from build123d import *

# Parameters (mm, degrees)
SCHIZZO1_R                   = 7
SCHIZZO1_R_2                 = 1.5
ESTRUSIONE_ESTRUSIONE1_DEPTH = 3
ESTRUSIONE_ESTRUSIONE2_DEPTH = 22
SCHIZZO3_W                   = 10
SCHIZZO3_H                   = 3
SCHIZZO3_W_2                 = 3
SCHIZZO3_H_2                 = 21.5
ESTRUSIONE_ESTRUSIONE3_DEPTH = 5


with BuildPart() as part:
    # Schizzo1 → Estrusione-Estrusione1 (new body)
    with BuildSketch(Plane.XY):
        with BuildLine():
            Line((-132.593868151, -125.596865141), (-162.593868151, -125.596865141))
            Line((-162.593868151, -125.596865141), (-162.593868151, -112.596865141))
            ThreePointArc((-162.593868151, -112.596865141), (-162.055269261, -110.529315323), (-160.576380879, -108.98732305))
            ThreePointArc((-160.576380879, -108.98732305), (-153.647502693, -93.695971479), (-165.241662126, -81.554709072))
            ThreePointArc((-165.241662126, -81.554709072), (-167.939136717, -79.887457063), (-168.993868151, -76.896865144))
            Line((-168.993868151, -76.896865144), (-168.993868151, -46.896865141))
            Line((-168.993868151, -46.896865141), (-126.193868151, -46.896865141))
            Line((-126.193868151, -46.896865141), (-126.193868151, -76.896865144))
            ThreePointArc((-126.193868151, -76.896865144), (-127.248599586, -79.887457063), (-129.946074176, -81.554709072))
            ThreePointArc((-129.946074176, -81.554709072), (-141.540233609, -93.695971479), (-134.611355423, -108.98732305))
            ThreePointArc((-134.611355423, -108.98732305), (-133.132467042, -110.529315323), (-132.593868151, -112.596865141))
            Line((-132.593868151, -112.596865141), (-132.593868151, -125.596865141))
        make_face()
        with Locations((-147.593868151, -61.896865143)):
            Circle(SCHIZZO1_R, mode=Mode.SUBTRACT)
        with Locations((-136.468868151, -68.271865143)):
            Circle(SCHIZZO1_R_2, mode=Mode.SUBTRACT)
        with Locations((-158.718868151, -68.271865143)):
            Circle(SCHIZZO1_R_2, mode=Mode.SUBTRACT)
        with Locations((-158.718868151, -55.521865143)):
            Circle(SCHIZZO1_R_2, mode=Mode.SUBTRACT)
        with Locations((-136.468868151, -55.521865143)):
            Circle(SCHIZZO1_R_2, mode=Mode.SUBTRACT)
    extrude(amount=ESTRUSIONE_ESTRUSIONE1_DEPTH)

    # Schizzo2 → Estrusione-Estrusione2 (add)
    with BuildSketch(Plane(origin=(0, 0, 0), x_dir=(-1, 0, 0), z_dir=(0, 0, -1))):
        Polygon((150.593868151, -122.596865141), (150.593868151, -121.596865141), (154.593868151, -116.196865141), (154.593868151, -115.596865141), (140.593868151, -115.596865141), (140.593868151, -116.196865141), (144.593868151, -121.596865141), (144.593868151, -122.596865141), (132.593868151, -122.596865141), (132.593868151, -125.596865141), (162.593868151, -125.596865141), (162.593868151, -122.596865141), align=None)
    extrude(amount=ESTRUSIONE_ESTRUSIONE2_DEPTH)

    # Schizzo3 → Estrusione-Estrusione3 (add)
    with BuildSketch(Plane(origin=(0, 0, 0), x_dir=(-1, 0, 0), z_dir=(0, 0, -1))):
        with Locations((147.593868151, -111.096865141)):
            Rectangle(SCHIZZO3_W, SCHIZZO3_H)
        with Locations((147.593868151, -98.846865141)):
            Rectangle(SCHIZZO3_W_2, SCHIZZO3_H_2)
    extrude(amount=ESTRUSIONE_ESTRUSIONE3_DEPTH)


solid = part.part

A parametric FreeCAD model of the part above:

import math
import FreeCAD as App
import Part
import Sketcher

V = App.Vector

doc = App.newDocument("Part")
body = doc.addObject("PartDesign::Body", "Body")

sketch1 = body.newObject("Sketcher::SketchObject", "Sketch")
sketch1.AttachmentSupport = (doc.getObject("XY_Plane"), [""])
sketch1.MapMode = "FlatFace"
sketch1.addGeometry([
    Part.LineSegment(V(-162.6, -125.6, 0), V(-132.6, -125.6, 0)),
    Part.LineSegment(V(-132.6, -125.6, 0), V(-132.6, -112.6, 0)),
    Part.ArcOfCircle(Part.Circle(V(-136.8, -112.6, 0), V(0, 0, 1), 4.2), math.radians(0), math.radians(58)),
    Part.ArcOfCircle(Part.Circle(V(-126.8, -96.2, 0), V(0, 0, 1), 15), math.radians(102), math.radians(238)),
    Part.ArcOfCircle(Part.Circle(V(-131, -76.9, 0), V(0, 0, 1), 4.8), math.radians(-78), math.radians(0)),
    Part.LineSegment(V(-126.2, -76.9, 0), V(-126.2, -46.9, 0)),
    Part.LineSegment(V(-126.2, -46.9, 0), V(-169, -46.9, 0)),
    Part.LineSegment(V(-169, -46.9, 0), V(-169, -76.9, 0)),
    Part.ArcOfCircle(Part.Circle(V(-164.2, -76.9, 0), V(0, 0, 1), 4.8), math.radians(180), math.radians(258)),
    Part.ArcOfCircle(Part.Circle(V(-168.4, -96.2, 0), V(0, 0, 1), 15), math.radians(-58), math.radians(78)),
    Part.ArcOfCircle(Part.Circle(V(-158.4, -112.6, 0), V(0, 0, 1), 4.2), math.radians(122), math.radians(180)),
    Part.LineSegment(V(-162.6, -112.6, 0), V(-162.6, -125.6, 0)),
    Part.Circle(V(-136.5, -68.3, 0), V(0, 0, 1), 1.5),
    Part.Circle(V(-158.7, -68.3, 0), V(0, 0, 1), 1.5),
    Part.Circle(V(-136.5, -55.5, 0), V(0, 0, 1), 1.5),
    Part.Circle(V(-147.6, -61.9, 0), V(0, 0, 1), 7),
    Part.Circle(V(-158.7, -55.5, 0), V(0, 0, 1), 1.5),
], False)
sketch1.addConstraint([
    Sketcher.Constraint("Coincident", 0, 2, 1, 1),
    Sketcher.Constraint("Tangent", 1, 2, 2, 1),
    Sketcher.Constraint("Tangent", 2, 2, 3, 2),
    Sketcher.Constraint("Tangent", 3, 1, 4, 1),
    Sketcher.Constraint("Tangent", 4, 2, 5, 1),
    Sketcher.Constraint("Coincident", 5, 2, 6, 1),
    Sketcher.Constraint("Coincident", 6, 2, 7, 1),
    Sketcher.Constraint("Tangent", 7, 2, 8, 1),
    Sketcher.Constraint("Tangent", 8, 2, 9, 2),
    Sketcher.Constraint("Tangent", 9, 1, 10, 1),
    Sketcher.Constraint("Tangent", 10, 2, 11, 1),
    Sketcher.Constraint("Coincident", 11, 2, 0, 1),
    Sketcher.Constraint("Horizontal", 0),
    Sketcher.Constraint("Vertical", 1),
    Sketcher.Constraint("Vertical", 5),
    Sketcher.Constraint("Horizontal", 6),
    Sketcher.Constraint("Vertical", 7),
    Sketcher.Constraint("Vertical", 11),
    Sketcher.Constraint("Equal", 4, 8),
    Sketcher.Constraint("Equal", 3, 9),
    Sketcher.Constraint("Equal", 2, 10),
    Sketcher.Constraint("Equal", 12, 13),
    Sketcher.Constraint("Equal", 13, 14),
    Sketcher.Constraint("Equal", 14, 16),
    Sketcher.Constraint("Horizontal", 4, 3, 8, 3),
    Sketcher.Constraint("Horizontal", 3, 3, 9, 3),
    Sketcher.Constraint("Horizontal", 2, 3, 10, 3),
    Sketcher.Constraint("Horizontal", 12, 3, 13, 3),
    Sketcher.Constraint("Horizontal", 14, 3, 16, 3),
    Sketcher.Constraint("Vertical", 12, 3, 14, 3),
    Sketcher.Constraint("Vertical", 13, 3, 16, 3),
    Sketcher.Constraint("Equal", 0, 5),
    Sketcher.Constraint("Diameter", 12, 3.0),
    Sketcher.Constraint("Diameter", 15, 14.0),
    Sketcher.Constraint("Radius", 3, 15.0),
    Sketcher.Constraint("DistanceX", 0, 1, 0, 2, 30.0),
    Sketcher.Constraint("DistanceY", 1, 1, 1, 2, 13.0),
    Sketcher.Constraint("DistanceX", 6, 2, 6, 1, 42.8),
    Sketcher.Constraint("DistanceY", 4, 3, 15, 3, 15.0),
    Sketcher.Constraint("DistanceY", 2, 3, 4, 3, 35.7),
    Sketcher.Constraint("DistanceX", 15, 3, 5, 2, 21.4),
    Sketcher.Constraint("Radius", 2, 4.237709),
    Sketcher.Constraint("DistanceX", 13, 3, 12, 3, 22.25),
    Sketcher.Constraint("DistanceY", 12, 3, 14, 3, 12.75),
    Sketcher.Constraint("Radius", 4, 4.767137),
    Sketcher.Constraint("DistanceY", 4, 3, 12, 3, 8.625),
    Sketcher.Constraint("DistanceX", 15, 3, 12, 3, 11.125),
    Sketcher.Constraint("DistanceX", 3, 3, -1, 1, 126.752551),
    Sketcher.Constraint("DistanceY", 3, 1, -1, 1, 81.554709),
])
pad1 = body.newObject("PartDesign::Pad", "Pad")
pad1.Profile = sketch1
pad1.Length = 3

sketch2 = body.newObject("Sketcher::SketchObject", "Sketch001")
sketch2.AttachmentSupport = (doc.getObject("XY_Plane"), [""])
sketch2.MapMode = "FlatFace"
sketch2.addGeometry([
    Part.LineSegment(V(-150.6, -122.6, 0), V(-150.6, -121.6, 0)),
    Part.LineSegment(V(-150.6, -121.6, 0), V(-154.6, -116.2, 0)),
    Part.LineSegment(V(-154.6, -116.2, 0), V(-154.6, -115.6, 0)),
    Part.LineSegment(V(-154.6, -115.6, 0), V(-140.6, -115.6, 0)),
    Part.LineSegment(V(-140.6, -115.6, 0), V(-140.6, -116.2, 0)),
    Part.LineSegment(V(-140.6, -116.2, 0), V(-144.6, -121.6, 0)),
    Part.LineSegment(V(-144.6, -121.6, 0), V(-144.6, -122.6, 0)),
    Part.LineSegment(V(-144.6, -122.6, 0), V(-132.6, -122.6, 0)),
    Part.LineSegment(V(-132.6, -122.6, 0), V(-132.6, -125.6, 0)),
    Part.LineSegment(V(-132.6, -125.6, 0), V(-162.6, -125.6, 0)),
    Part.LineSegment(V(-162.6, -125.6, 0), V(-162.6, -122.6, 0)),
    Part.LineSegment(V(-162.6, -122.6, 0), V(-150.6, -122.6, 0)),
], False)
sketch2.addConstraint([
    Sketcher.Constraint("Coincident", 0, 2, 1, 1),
    Sketcher.Constraint("Coincident", 1, 2, 2, 1),
    Sketcher.Constraint("Coincident", 2, 2, 3, 1),
    Sketcher.Constraint("Coincident", 3, 2, 4, 1),
    Sketcher.Constraint("Coincident", 4, 2, 5, 1),
    Sketcher.Constraint("Coincident", 5, 2, 6, 1),
    Sketcher.Constraint("Coincident", 6, 2, 7, 1),
    Sketcher.Constraint("Coincident", 7, 2, 8, 1),
    Sketcher.Constraint("Coincident", 8, 2, 9, 1),
    Sketcher.Constraint("Coincident", 9, 2, 10, 1),
    Sketcher.Constraint("Coincident", 10, 2, 11, 1),
    Sketcher.Constraint("Coincident", 11, 2, 0, 1),
    Sketcher.Constraint("Vertical", 0),
    Sketcher.Constraint("Vertical", 2),
    Sketcher.Constraint("Horizontal", 3),
    Sketcher.Constraint("Vertical", 4),
    Sketcher.Constraint("Vertical", 6),
    Sketcher.Constraint("Horizontal", 7),
    Sketcher.Constraint("Vertical", 8),
    Sketcher.Constraint("Horizontal", 9),
    Sketcher.Constraint("Vertical", 10),
    Sketcher.Constraint("Horizontal", 11),
    Sketcher.Constraint("Horizontal", 1, 2, 4, 2),
    Sketcher.Constraint("Horizontal", 0, 2, 5, 2),
    Sketcher.Constraint("Horizontal", 7, 2, 10, 2),
    Sketcher.Constraint("Equal", 7, 11),
    Sketcher.Constraint("Equal", 1, 5),
    Sketcher.Constraint("DistanceX", 3, 1, 3, 2, 14.0),
    Sketcher.Constraint("DistanceX", 7, 1, 7, 2, 12.0),
    Sketcher.Constraint("DistanceX", 9, 2, 9, 1, 30.0),
    Sketcher.Constraint("DistanceY", 0, 1, 0, 2, 1.0),
    Sketcher.Constraint("DistanceY", 8, 2, 8, 1, 3.0),
    Sketcher.Constraint("DistanceY", 2, 1, 2, 2, 0.6),
    Sketcher.Constraint("DistanceY", 0, 2, 2, 2, 6.0),
    Sketcher.Constraint("DistanceX", 0, 2, -1, 1, 150.593868),
    Sketcher.Constraint("DistanceY", 0, 2, -1, 1, 121.596865),
])
pad2 = body.newObject("PartDesign::Pad", "Pad001")
pad2.Profile = sketch2
pad2.Length = 22
pad2.Reversed = True

sketch3 = body.newObject("Sketcher::SketchObject", "Sketch002")
sketch3.AttachmentSupport = (doc.getObject("XY_Plane"), [""])
sketch3.MapMode = "FlatFace"
sketch3.addGeometry([
    Part.LineSegment(V(-142.6, -109.6, 0), V(-142.6, -112.6, 0)),
    Part.LineSegment(V(-142.6, -112.6, 0), V(-152.6, -112.6, 0)),
    Part.LineSegment(V(-152.6, -112.6, 0), V(-152.6, -109.6, 0)),
    Part.LineSegment(V(-152.6, -109.6, 0), V(-149.1, -109.6, 0)),
    Part.LineSegment(V(-149.1, -109.6, 0), V(-149.1, -88.1, 0)),
    Part.LineSegment(V(-149.1, -88.1, 0), V(-146.1, -88.1, 0)),
    Part.LineSegment(V(-146.1, -88.1, 0), V(-146.1, -109.6, 0)),
    Part.LineSegment(V(-146.1, -109.6, 0), V(-142.6, -109.6, 0)),
], False)
sketch3.addConstraint([
    Sketcher.Constraint("Coincident", 0, 2, 1, 1),
    Sketcher.Constraint("Coincident", 1, 2, 2, 1),
    Sketcher.Constraint("Coincident", 2, 2, 3, 1),
    Sketcher.Constraint("Coincident", 3, 2, 4, 1),
    Sketcher.Constraint("Coincident", 4, 2, 5, 1),
    Sketcher.Constraint("Coincident", 5, 2, 6, 1),
    Sketcher.Constraint("Coincident", 6, 2, 7, 1),
    Sketcher.Constraint("Coincident", 7, 2, 0, 1),
    Sketcher.Constraint("Vertical", 0),
    Sketcher.Constraint("Horizontal", 1),
    Sketcher.Constraint("Vertical", 2),
    Sketcher.Constraint("Horizontal", 3),
    Sketcher.Constraint("Vertical", 4),
    Sketcher.Constraint("Horizontal", 5),
    Sketcher.Constraint("Vertical", 6),
    Sketcher.Constraint("Horizontal", 7),
    Sketcher.Constraint("Horizontal", 3, 2, 6, 2),
    Sketcher.Constraint("Equal", 3, 7),
    Sketcher.Constraint("Equal", 5, 0),
    Sketcher.Constraint("DistanceX", 1, 2, 1, 1, 10.0),
    Sketcher.Constraint("DistanceX", 5, 1, 5, 2, 3.0),
    Sketcher.Constraint("DistanceY", 4, 1, 4, 2, 21.5),
    Sketcher.Constraint("DistanceX", 0, 2, -1, 1, 142.593868),
    Sketcher.Constraint("DistanceY", 0, 2, -1, 1, 112.596865),
])
pad3 = body.newObject("PartDesign::Pad", "Pad002")
pad3.Profile = sketch3
pad3.Length = 5
pad3.Reversed = True

doc.recompute()
